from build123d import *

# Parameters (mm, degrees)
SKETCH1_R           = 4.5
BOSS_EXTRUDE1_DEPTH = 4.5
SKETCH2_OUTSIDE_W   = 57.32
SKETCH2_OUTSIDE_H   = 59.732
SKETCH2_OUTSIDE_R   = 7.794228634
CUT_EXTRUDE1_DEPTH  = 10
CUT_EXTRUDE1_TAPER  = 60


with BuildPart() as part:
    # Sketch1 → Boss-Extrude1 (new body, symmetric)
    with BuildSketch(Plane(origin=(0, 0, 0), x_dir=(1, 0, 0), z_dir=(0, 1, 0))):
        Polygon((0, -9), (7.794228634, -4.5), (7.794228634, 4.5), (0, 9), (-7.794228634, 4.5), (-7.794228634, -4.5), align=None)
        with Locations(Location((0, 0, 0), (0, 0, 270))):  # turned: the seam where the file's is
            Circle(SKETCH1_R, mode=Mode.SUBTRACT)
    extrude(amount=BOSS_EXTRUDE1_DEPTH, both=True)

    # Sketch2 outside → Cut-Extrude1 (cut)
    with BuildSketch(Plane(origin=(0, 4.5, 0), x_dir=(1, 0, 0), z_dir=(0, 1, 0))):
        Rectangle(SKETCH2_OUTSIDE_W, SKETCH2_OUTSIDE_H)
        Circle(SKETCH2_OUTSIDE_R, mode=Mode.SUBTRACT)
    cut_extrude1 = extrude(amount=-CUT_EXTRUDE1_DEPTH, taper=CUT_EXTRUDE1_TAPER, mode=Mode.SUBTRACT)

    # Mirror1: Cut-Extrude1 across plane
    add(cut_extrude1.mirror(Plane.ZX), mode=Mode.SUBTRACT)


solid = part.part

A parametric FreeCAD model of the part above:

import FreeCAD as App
import Part
import Sketcher
from FreeCAD import Vector
Q = App.Units.Quantity


def add_polygon(sketch, points):
    """Adds a closed chain of lines whose ends are joined by coincident constraints."""
    first, n = sketch.GeometryCount, len(points)
    for a, b in zip(points, points[1:] + points[:1]):
        sketch.addGeometry(Part.LineSegment(App.Vector(*a, 0), App.Vector(*b, 0)), False)
    for i in range(n):
        sketch.addConstraint(Sketcher.Constraint("Coincident", first + i, 2, first + (i + 1) % n, 1))

doc = App.newDocument("Part")
params = doc.addObject("Spreadsheet::Sheet", "Params")
for row, (alias, value) in enumerate([
    ("sketch1_diameter", "9 mm"),
    ("sketch1_height", "9 mm"),
    ("sketch1_length", "9 mm"),
    ("pad1_length", "9 mm"),
    ("sketch2_width", "57.32 mm"),
    ("pocket1_length", "10 mm"),
    ("pocket1_taper", "60 deg"),
], start=1):
    params.set(f"A{row}", alias)
    params.set(f"B{row}", "=" + value)
    params.setAlias(f"B{row}", alias)

body = doc.addObject("PartDesign::Body", "Body")

# Sketch on XZ plane
sketch1 = body.newObject("Sketcher::SketchObject", "Sketch")
sketch1.AttachmentSupport = (doc.getObject("XZ_Plane"), [""])
sketch1.MapMode = "FlatFace"
add_polygon(sketch1, [(0, 9), (7.8, 4.5), (7.8, -4.5), (0, -9), (-7.8, -4.5), (-7.8, 4.5)])  # lines 0-5
sketch1.addGeometry(Part.Circle(Vector(0, 0, 0), Vector(0, 0, 1), 4.5), False)  # 6
sketch1.addConstraint([
    Sketcher.Constraint("Vertical", 1),
    Sketcher.Constraint("Vertical", 4),
    Sketcher.Constraint("Coincident", 6, 3, -1, 1),
    Sketcher.Constraint("Symmetric", 0, 2, 3, 2, -1, 1),
    Sketcher.Constraint("Symmetric", 2, 2, 5, 2, -1, 1),
    Sketcher.Constraint("PointOnObject", 2, 2, -2),
    Sketcher.Constraint("Parallel", 2, 5),
    Sketcher.Constraint("Horizontal", 1, 2, 3, 2),
    Sketcher.Constraint("Diameter", 6, 9.0),
    Sketcher.Constraint("DistanceY", 1, 2, 1, 1, 9.0),
    Sketcher.Constraint("Angle", 0, Q("-30 deg")),
    Sketcher.Constraint("Distance", 0, 9.0),
])
sketch1.setExpression("Constraints[14]", "Params.sketch1_diameter")
sketch1.setExpression("Constraints[15]", "Params.sketch1_height")
sketch1.setExpression("Constraints[17]", "Params.sketch1_length")
pad1 = body.newObject("PartDesign::Pad", "Pad")
pad1.Profile = sketch1
pad1.setExpression("Length", "Params.pad1_length")
pad1.Midplane = True

# Sketch on XZ plane
sketch2 = body.newObject("Sketcher::SketchObject", "Sketch001")
sketch2.AttachmentSupport = (doc.getObject("XZ_Plane"), [""])
sketch2.MapMode = "FlatFace"
sketch2.AttachmentOffset = App.Placement(Vector(0, 0, -4.5), App.Rotation())
add_polygon(sketch2, [(-29, -30), (-29, 30), (29, 30), (29, -30)])  # lines 0-3
sketch2.addGeometry(Part.Circle(Vector(0, 0, 0), Vector(0, 0, 1), 8), False)  # 4
sketch2.addConstraint([
    Sketcher.Constraint("Vertical", 0),
    Sketcher.Constraint("Horizontal", 1),
    Sketcher.Constraint("Vertical", 2),
    Sketcher.Constraint("Horizontal", 3),
    Sketcher.Constraint("Coincident", 4, 3, -1, 1),
    Sketcher.Constraint("Symmetric", 0, 2, 2, 2, -1, 1),
    Sketcher.Constraint("DistanceX", 1, 1, 1, 2, 57.32),
    Sketcher.Constraint("DistanceY", 0, 1, 0, 2, 59.732),
    Sketcher.Constraint("Diameter", 4, 15.588457),
])
sketch2.setExpression("Constraints[10]", "Params.sketch2_width")
pocket1 = body.newObject("PartDesign::Pocket", "Pocket")
pocket1.Profile = sketch2
pocket1.setExpression("Length", "Params.pocket1_length")
pocket1.Reversed = True
pocket1.setExpression("TaperAngle", "Params.pocket1_taper")
doc.recompute()

mirrored = body.newObject("PartDesign::Mirrored", "Mirrored")
mirrored.Originals = [pocket1]
mirrored.MirrorPlane = (doc.getObject("XZ_Plane"), [""])
body.Tip = mirrored

doc.recompute()
